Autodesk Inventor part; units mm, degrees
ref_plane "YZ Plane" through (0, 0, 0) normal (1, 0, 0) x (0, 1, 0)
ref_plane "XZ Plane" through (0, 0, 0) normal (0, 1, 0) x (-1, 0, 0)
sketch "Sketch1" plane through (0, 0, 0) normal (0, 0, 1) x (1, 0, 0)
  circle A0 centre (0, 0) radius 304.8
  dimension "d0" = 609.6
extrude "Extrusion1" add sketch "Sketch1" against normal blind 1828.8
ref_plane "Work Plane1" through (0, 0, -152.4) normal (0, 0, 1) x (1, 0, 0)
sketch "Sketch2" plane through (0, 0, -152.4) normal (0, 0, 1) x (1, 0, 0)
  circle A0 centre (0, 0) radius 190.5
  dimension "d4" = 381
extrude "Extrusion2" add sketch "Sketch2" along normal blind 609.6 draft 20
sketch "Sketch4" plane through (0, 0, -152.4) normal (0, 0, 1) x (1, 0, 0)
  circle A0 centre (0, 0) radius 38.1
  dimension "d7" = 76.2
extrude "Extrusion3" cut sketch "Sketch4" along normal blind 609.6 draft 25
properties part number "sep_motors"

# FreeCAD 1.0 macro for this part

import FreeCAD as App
import Part
import Sketcher

V = App.Vector
Q = App.Units.Quantity

doc = App.newDocument("Part")
body = doc.addObject("PartDesign::Body", "Body")

sketch1 = body.newObject("Sketcher::SketchObject", "Sketch")
sketch1.AttachmentSupport = (doc.getObject("XY_Plane"), [""])
sketch1.MapMode = "FlatFace"
sketch1.addGeometry(Part.Circle(V(0, 0, 0), V(0, 0, 1), 305), False)
sketch1.addConstraint([
    Sketcher.Constraint("Coincident", 0, 3, -1, 1),
    Sketcher.Constraint("Diameter", 0, Q("24 in")),
])
pad1 = body.newObject("PartDesign::Pad", "Pad")
pad1.Profile = sketch1
pad1.Length = Q("72 in")
pad1.Reversed = True

sketch2 = body.newObject("Sketcher::SketchObject", "Sketch001")
sketch2.AttachmentSupport = (doc.getObject("XY_Plane"), [""])
sketch2.MapMode = "FlatFace"
sketch2.AttachmentOffset = App.Placement(V(0, 0, -6 * 25.4), App.Rotation())
sketch2.addGeometry(Part.Circle(V(0, 0, 0), V(0, 0, 1), 190), False)
sketch2.addConstraint([
    Sketcher.Constraint("Coincident", 0, 3, -1, 1),
    Sketcher.Constraint("Diameter", 0, Q("15 in")),
])
pad2 = body.newObject("PartDesign::Pad", "Pad001")
pad2.Profile = sketch2
pad2.Length = Q("24 in")
pad2.TaperAngle = 20

sketch3 = body.newObject("Sketcher::SketchObject", "Sketch002")
sketch3.AttachmentSupport = (doc.getObject("XY_Plane"), [""])
sketch3.MapMode = "FlatFace"
sketch3.AttachmentOffset = App.Placement(V(0, 0, -6 * 25.4), App.Rotation())
sketch3.addGeometry(Part.Circle(V(0, 0, 0), V(0, 0, 1), 38), False)
sketch3.addConstraint([
    Sketcher.Constraint("Coincident", 0, 3, -1, 1),
    Sketcher.Constraint("Diameter", 0, Q("3 in")),
])
pocket1 = body.newObject("PartDesign::Pocket", "Pocket")
pocket1.Profile = sketch3
pocket1.Length = Q("24 in")
pocket1.Reversed = True
pocket1.TaperAngle = 25

doc.recompute()
